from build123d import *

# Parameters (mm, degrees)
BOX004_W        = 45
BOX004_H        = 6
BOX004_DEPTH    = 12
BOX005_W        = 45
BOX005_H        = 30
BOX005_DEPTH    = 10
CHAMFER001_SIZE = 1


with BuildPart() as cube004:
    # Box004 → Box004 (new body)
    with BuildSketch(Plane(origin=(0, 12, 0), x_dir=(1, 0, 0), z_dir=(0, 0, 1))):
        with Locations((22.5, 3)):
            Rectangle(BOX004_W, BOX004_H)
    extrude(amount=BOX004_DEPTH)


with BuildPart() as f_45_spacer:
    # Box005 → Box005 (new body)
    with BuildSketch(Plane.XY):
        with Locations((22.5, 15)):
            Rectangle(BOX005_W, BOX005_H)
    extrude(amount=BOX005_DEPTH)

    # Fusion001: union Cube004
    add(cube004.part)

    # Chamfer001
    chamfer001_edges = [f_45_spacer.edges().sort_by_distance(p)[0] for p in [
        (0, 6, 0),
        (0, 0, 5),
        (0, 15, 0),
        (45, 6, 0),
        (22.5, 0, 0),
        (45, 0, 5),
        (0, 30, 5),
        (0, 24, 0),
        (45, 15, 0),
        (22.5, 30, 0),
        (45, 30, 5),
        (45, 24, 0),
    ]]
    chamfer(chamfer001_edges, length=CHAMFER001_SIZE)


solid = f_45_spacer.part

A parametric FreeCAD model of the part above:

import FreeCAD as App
import Part
import Sketcher
from FreeCAD import Vector
Q = App.Units.Quantity


def edges_at(feature, points):
    """Names of the edges that pass closest to the given points."""
    edges = feature.Shape.Edges
    near = lambda p: min(range(len(edges)), key=lambda i: edges[i].distToShape(Part.Vertex(*p))[0])
    return sorted({f"Edge{near(p) + 1}" for p in points})

doc = App.newDocument("Part")
params = doc.addObject("Spreadsheet::Sheet", "Params")
for row, (alias, value) in enumerate([
    ("sketch1_width", "45 mm"),
    ("sketch1_height", "6 mm"),
    ("pad1_length", "12 mm"),
    ("sketch2_width", "45 mm"),
    ("sketch2_height", "30 mm"),
    ("pad2_length", "10 mm"),
    ("chamfer_size", "1 mm"),
], start=1):
    params.set(f"A{row}", alias)
    params.set(f"B{row}", "=" + value)
    params.setAlias(f"B{row}", alias)

body = doc.addObject("PartDesign::Body", "Body")

# Sketch on XY plane
sketch1 = body.newObject("Sketcher::SketchObject", "Sketch")
sketch1.AttachmentSupport = (doc.getObject("XY_Plane"), [""])
sketch1.MapMode = "FlatFace"
sketch1.addGeometry([
    Part.LineSegment(Vector(0, 18, 0), Vector(0, 12, 0)),
    Part.LineSegment(Vector(0, 12, 0), Vector(45, 12, 0)),
    Part.LineSegment(Vector(45, 12, 0), Vector(45, 18, 0)),
    Part.LineSegment(Vector(45, 18, 0), Vector(0, 18, 0)),
], False)
sketch1.addConstraint([
    Sketcher.Constraint("Coincident", 0, 2, 1, 1),
    Sketcher.Constraint("Coincident", 1, 2, 2, 1),
    Sketcher.Constraint("Coincident", 2, 2, 3, 1),
    Sketcher.Constraint("Coincident", 3, 2, 0, 1),
    Sketcher.Constraint("Vertical", 0),
    Sketcher.Constraint("Horizontal", 1),
    Sketcher.Constraint("Vertical", 2),
    Sketcher.Constraint("Horizontal", 3),
    Sketcher.Constraint("PointOnObject", 0, 2, -2),
    Sketcher.Constraint("DistanceX", 1, 1, 1, 2, Q("45 mm")),
    Sketcher.Constraint("DistanceY", 0, 2, 0, 1, Q("6 mm")),
    Sketcher.Constraint("DistanceY", -1, 1, 0, 2, Q("12 mm")),
])
sketch1.setExpression("Constraints[9]", "Params.sketch1_width")
sketch1.setExpression("Constraints[10]", "Params.sketch1_height")
pad1 = body.newObject("PartDesign::Pad", "Pad")
pad1.Profile = sketch1
pad1.setExpression("Length", "Params.pad1_length")
body2 = doc.addObject("PartDesign::Body", "Body001")

# Sketch on XY plane
sketch2 = body2.newObject("Sketcher::SketchObject", "Sketch001")
sketch2.AttachmentSupport = (doc.getObject("XY_Plane001"), [""])
sketch2.MapMode = "FlatFace"
sketch2.addGeometry([
    Part.LineSegment(Vector(0, 30, 0), Vector(0, 0, 0)),
    Part.LineSegment(Vector(0, 0, 0), Vector(45, 0, 0)),
    Part.LineSegment(Vector(45, 0, 0), Vector(45, 30, 0)),
    Part.LineSegment(Vector(45, 30, 0), Vector(0, 30, 0)),
], False)
sketch2.addConstraint([
    Sketcher.Constraint("Coincident", 0, 2, 1, 1),
    Sketcher.Constraint("Coincident", 1, 2, 2, 1),
    Sketcher.Constraint("Coincident", 2, 2, 3, 1),
    Sketcher.Constraint("Coincident", 3, 2, 0, 1),
    Sketcher.Constraint("Vertical", 0),
    Sketcher.Constraint("Horizontal", 1),
    Sketcher.Constraint("Vertical", 2),
    Sketcher.Constraint("Horizontal", 3),
    Sketcher.Constraint("Coincident", 0, 2, -1, 1),
    Sketcher.Constraint("DistanceX", 1, 1, 1, 2, Q("45 mm")),
    Sketcher.Constraint("DistanceY", 0, 2, 0, 1, Q("30 mm")),
])
sketch2.setExpression("Constraints[9]", "Params.sketch2_width")
sketch2.setExpression("Constraints[10]", "Params.sketch2_height")
pad2 = body2.newObject("PartDesign::Pad", "Pad001")
pad2.Profile = sketch2
pad2.setExpression("Length", "Params.pad2_length")
doc.recompute()

boolean = body2.newObject("PartDesign::Boolean", "Boolean")
boolean.Type = "Fuse"
boolean.addObjects([body])
doc.recompute()

chamfer = body2.newObject("PartDesign::Chamfer", "Chamfer")
chamfer.Base = (boolean, edges_at(boolean, [
    (0, 15, 0),
    (0, 0, 5),
    (0, 15, 0),
    (45, 15, 0),
    (22.5, 0, 0),
    (45, 0, 5),
    (0, 30, 5),
    (0, 15, 0),
    (45, 15, 0),
    (22.5, 30, 0),
    (45, 30, 5),
    (45, 15, 0),
]))
chamfer.setExpression("Size", "Params.chamfer_size")

doc.recompute()
